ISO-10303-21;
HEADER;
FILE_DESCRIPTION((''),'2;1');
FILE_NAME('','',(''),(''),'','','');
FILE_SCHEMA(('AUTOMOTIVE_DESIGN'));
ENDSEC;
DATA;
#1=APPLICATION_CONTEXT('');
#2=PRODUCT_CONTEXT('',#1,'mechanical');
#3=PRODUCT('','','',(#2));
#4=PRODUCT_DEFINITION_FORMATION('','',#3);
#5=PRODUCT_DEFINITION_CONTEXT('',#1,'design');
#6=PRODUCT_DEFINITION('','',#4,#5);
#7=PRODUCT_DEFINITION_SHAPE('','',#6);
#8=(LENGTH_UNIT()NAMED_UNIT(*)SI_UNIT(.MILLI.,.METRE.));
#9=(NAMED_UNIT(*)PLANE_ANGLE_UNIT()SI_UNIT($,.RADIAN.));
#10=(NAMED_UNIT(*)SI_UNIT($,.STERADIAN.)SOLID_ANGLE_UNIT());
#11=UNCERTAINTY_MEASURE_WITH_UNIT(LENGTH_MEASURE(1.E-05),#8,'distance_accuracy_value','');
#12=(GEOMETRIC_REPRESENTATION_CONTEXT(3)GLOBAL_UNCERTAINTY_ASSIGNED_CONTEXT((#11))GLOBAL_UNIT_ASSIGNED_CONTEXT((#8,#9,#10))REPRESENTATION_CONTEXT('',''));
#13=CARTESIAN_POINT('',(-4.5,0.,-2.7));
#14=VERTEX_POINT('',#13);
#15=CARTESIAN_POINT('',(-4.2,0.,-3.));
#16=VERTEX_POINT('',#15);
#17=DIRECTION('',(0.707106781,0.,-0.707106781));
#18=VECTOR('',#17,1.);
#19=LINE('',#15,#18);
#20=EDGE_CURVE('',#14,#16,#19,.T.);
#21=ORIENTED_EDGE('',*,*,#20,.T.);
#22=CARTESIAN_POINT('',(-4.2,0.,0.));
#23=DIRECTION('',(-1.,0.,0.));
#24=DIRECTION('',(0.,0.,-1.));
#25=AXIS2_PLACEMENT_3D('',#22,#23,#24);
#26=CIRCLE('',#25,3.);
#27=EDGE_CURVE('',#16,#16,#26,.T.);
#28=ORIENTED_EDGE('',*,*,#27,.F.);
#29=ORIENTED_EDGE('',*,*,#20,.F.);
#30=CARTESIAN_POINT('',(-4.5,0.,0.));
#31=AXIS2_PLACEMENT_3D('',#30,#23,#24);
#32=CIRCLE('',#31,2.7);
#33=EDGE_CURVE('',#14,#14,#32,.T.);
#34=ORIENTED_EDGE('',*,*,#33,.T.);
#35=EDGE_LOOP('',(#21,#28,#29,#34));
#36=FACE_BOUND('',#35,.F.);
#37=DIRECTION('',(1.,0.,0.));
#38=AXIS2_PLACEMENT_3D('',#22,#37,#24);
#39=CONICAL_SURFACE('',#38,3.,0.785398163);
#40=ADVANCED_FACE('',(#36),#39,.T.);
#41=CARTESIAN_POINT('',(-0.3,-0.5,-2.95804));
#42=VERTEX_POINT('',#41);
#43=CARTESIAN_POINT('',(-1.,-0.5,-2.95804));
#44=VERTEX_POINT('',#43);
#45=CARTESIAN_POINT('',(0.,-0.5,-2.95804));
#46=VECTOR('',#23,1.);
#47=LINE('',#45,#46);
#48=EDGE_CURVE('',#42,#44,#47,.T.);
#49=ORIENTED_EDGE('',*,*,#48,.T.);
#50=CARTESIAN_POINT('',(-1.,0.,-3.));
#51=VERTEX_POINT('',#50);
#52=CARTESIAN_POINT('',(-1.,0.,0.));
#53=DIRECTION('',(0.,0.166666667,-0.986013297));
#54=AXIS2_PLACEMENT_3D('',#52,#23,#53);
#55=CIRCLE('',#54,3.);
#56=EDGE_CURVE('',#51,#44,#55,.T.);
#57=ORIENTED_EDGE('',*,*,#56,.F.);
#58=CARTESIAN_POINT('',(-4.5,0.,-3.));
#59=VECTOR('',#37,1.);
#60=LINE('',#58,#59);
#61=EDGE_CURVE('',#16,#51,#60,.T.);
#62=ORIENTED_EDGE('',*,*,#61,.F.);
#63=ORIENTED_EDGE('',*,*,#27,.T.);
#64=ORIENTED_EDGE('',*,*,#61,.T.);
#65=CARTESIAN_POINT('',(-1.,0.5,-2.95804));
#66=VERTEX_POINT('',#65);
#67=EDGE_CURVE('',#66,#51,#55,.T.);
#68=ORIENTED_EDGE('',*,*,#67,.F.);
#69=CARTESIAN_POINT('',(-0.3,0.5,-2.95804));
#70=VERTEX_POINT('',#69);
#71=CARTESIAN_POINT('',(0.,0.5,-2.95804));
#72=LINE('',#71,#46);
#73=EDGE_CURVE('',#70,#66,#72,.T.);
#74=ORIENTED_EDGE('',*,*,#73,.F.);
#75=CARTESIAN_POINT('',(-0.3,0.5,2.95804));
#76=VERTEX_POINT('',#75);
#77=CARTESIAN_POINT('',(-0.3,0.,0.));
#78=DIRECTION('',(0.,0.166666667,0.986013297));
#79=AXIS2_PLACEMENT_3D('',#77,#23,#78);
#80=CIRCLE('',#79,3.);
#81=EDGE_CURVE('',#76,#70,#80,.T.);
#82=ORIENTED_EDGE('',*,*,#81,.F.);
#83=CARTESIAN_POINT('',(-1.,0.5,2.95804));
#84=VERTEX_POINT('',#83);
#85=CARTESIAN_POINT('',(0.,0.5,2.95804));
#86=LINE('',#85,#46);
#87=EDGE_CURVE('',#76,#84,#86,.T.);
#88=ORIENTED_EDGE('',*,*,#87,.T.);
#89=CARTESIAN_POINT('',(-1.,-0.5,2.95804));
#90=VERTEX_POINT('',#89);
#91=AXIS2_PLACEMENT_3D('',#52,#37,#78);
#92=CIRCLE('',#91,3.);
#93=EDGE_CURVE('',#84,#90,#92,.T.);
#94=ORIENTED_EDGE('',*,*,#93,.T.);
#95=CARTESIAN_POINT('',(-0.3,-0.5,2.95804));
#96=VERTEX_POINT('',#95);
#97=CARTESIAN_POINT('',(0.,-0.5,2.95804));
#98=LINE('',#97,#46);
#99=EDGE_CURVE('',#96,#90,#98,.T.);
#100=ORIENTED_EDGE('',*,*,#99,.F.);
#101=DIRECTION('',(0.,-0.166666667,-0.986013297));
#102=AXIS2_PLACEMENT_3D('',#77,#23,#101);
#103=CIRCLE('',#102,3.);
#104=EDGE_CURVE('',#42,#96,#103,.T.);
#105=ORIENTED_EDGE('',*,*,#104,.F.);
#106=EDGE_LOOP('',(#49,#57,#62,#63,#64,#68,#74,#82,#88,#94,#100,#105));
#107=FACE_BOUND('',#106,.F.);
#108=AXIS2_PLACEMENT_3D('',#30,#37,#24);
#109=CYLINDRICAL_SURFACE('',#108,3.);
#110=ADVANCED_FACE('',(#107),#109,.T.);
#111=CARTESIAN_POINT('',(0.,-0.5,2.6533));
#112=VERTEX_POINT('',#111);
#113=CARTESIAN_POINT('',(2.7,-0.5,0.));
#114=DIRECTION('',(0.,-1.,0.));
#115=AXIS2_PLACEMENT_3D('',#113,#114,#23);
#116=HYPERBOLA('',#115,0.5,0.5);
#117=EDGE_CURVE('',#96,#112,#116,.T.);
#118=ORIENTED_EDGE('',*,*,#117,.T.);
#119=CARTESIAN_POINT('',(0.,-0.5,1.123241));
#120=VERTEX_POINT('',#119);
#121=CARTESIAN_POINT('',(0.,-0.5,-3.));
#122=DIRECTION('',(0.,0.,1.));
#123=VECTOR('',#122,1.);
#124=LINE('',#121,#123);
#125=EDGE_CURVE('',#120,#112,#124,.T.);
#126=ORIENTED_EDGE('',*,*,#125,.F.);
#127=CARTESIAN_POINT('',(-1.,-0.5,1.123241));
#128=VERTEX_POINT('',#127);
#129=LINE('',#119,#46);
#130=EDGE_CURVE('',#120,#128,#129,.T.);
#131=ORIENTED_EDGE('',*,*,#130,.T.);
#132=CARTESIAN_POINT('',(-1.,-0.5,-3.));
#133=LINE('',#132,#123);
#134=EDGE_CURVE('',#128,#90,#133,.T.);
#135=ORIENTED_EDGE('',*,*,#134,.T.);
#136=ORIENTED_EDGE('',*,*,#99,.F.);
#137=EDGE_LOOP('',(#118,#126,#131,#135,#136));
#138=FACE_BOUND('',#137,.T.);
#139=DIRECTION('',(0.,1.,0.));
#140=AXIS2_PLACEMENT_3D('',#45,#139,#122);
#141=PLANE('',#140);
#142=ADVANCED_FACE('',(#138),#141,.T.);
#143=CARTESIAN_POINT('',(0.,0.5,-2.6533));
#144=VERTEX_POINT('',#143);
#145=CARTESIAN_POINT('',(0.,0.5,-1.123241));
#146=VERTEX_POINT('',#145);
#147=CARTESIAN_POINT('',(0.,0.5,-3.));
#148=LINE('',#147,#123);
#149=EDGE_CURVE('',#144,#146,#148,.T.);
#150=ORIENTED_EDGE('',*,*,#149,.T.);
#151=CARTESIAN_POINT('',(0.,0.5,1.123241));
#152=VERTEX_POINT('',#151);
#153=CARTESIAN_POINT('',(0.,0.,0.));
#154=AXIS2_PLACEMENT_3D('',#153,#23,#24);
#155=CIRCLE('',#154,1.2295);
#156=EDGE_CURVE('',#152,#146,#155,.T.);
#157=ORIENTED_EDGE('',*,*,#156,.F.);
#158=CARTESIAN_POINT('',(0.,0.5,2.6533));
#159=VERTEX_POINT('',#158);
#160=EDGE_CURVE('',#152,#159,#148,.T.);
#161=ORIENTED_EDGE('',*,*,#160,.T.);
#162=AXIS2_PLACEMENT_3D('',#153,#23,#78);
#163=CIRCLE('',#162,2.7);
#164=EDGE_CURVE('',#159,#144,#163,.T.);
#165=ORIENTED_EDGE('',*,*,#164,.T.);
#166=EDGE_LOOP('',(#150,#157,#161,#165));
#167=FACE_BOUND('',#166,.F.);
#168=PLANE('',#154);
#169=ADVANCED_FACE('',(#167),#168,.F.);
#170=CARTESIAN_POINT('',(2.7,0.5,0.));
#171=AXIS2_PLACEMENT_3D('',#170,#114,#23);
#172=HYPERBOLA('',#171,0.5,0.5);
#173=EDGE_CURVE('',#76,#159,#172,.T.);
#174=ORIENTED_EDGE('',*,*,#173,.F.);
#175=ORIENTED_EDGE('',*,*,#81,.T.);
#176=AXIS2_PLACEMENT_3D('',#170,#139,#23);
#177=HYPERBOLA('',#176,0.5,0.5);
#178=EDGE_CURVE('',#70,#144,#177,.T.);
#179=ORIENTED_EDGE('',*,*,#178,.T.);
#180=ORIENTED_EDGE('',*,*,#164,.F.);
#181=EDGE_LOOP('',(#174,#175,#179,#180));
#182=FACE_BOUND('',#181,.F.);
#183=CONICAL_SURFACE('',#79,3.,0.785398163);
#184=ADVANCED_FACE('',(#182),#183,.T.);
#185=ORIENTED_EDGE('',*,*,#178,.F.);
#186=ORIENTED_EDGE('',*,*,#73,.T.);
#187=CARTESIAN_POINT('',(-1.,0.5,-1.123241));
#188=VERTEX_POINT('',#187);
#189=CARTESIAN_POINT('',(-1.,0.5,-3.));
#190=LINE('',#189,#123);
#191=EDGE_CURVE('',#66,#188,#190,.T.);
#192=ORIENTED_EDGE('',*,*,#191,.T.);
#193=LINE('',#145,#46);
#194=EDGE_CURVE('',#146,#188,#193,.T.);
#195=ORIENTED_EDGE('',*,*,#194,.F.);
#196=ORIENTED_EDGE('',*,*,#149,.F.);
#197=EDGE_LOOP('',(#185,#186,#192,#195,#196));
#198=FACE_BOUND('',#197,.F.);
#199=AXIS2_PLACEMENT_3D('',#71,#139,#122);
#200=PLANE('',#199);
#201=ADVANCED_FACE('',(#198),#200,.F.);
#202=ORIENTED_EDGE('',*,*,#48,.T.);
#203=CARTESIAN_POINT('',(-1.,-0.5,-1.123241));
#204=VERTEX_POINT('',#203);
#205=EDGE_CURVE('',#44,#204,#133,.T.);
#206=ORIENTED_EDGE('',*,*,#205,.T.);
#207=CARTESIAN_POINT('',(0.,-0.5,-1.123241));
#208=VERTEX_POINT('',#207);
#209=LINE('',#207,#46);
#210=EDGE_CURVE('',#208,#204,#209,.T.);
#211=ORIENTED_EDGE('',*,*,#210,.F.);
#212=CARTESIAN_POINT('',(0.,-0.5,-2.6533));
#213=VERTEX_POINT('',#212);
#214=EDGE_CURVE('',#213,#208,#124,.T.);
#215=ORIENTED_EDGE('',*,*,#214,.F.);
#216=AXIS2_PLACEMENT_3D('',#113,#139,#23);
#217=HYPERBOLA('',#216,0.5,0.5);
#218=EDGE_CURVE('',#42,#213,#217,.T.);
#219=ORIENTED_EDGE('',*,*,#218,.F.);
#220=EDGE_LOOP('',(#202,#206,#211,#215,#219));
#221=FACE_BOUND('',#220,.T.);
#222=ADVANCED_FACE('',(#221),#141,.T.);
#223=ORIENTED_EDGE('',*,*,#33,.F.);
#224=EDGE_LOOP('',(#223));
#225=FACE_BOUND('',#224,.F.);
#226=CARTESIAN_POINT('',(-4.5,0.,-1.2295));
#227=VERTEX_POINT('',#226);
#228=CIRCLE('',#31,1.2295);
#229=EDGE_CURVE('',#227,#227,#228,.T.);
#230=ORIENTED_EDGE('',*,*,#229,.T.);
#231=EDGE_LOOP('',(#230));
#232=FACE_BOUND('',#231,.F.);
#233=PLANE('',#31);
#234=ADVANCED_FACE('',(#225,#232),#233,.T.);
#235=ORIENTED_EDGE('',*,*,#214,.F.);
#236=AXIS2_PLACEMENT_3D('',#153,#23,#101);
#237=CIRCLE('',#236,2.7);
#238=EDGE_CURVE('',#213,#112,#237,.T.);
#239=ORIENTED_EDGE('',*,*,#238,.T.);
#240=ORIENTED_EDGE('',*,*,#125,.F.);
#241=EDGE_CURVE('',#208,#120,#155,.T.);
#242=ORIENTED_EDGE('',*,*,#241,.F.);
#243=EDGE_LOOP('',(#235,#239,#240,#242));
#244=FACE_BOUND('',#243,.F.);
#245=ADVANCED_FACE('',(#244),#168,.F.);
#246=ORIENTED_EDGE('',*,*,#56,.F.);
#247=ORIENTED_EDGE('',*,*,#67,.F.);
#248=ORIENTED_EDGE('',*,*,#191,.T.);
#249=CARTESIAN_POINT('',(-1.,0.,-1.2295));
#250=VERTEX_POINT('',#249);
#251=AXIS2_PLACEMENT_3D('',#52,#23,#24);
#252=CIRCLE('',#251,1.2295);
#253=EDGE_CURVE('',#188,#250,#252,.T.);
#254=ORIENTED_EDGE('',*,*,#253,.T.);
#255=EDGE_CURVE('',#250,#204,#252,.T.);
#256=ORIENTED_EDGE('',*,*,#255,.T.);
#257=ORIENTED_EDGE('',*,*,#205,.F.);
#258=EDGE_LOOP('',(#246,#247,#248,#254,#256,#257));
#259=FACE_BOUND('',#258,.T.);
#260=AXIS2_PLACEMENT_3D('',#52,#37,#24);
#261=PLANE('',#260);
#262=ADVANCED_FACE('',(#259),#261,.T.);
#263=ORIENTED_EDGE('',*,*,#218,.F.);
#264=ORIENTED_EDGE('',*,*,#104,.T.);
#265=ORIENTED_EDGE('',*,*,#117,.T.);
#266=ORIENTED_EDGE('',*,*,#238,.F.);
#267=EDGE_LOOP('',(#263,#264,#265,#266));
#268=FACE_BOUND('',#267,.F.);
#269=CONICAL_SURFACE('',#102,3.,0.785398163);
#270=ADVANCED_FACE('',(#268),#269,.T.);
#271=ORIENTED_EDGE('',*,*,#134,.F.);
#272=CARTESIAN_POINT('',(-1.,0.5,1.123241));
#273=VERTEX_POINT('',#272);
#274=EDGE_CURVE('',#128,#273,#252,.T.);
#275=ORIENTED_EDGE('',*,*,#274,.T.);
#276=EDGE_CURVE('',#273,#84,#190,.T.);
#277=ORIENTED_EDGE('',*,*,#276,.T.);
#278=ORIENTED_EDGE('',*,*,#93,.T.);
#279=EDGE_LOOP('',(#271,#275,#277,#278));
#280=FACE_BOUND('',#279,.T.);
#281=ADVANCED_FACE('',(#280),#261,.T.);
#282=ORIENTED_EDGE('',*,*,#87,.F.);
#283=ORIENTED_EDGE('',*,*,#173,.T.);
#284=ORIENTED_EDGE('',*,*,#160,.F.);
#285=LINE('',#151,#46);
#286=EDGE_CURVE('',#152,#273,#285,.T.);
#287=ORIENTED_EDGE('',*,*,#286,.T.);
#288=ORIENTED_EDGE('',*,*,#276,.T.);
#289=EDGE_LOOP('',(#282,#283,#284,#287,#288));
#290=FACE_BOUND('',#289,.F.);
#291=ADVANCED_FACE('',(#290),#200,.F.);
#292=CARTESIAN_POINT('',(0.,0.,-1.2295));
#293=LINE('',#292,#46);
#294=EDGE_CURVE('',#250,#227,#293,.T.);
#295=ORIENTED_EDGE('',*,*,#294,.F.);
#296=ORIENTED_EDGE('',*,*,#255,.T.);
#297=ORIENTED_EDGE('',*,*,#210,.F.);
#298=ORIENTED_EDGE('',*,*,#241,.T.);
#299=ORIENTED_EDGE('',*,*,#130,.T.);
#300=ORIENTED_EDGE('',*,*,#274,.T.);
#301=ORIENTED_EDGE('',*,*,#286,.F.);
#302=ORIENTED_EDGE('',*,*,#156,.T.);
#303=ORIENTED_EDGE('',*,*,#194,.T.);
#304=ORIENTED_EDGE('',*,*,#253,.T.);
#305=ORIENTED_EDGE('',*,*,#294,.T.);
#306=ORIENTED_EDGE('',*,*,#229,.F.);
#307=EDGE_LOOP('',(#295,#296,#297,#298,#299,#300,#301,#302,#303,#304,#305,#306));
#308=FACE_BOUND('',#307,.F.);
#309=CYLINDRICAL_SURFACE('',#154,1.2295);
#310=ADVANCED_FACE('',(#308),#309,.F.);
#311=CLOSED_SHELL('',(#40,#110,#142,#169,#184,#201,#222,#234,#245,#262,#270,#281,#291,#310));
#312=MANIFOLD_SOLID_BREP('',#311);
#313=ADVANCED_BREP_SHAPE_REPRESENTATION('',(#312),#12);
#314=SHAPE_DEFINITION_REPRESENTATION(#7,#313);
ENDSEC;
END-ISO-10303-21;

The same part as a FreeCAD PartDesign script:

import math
import FreeCAD as App
import Part
import Sketcher


def edges_at(feature, points):
    """Names of the edges that pass closest to the given points."""
    edges = feature.Shape.Edges
    near = lambda p: min(range(len(edges)), key=lambda i: edges[i].distToShape(Part.Vertex(*p))[0])
    return sorted({f"Edge{near(p) + 1}" for p in points})

doc = App.newDocument("Part")
body = doc.addObject("PartDesign::Body", "Body")

sketch1 = body.newObject("Sketcher::SketchObject", "Sketch")
sketch1.AttachmentSupport = (doc.getObject("XZ_Plane"), [""])
sketch1.MapMode = "FlatFace"
sketch1.addGeometry([
    Part.LineSegment(App.Vector(-4.5, 0, 0), App.Vector(0, 0, 0)),
    Part.LineSegment(App.Vector(0, 0, 0), App.Vector(0, -3, 0)),
    Part.LineSegment(App.Vector(0, -3, 0), App.Vector(-4.5, -3, 0)),
    Part.LineSegment(App.Vector(-4.5, -3, 0), App.Vector(-4.5, 0, 0)),
], False)
sketch1.addConstraint([
    Sketcher.Constraint("Coincident", 0, 2, 1, 1),
    Sketcher.Constraint("Coincident", 1, 2, 2, 1),
    Sketcher.Constraint("Coincident", 2, 2, 3, 1),
    Sketcher.Constraint("Coincident", 3, 2, 0, 1),
    Sketcher.Constraint("Horizontal", 0),
    Sketcher.Constraint("Vertical", 1),
    Sketcher.Constraint("Horizontal", 2),
    Sketcher.Constraint("Vertical", 3),
    Sketcher.Constraint("Coincident", 0, 2, -1, 1),
    Sketcher.Constraint("DistanceY", 1, 2, 1, 1, 3.0),
    Sketcher.Constraint("DistanceX", 0, 1, 0, 2, 4.5),
])
revolution = body.newObject("PartDesign::Revolution", "Revolution")
revolution.Profile = sketch1
revolution.ReferenceAxis = (sketch1, ["H_Axis"])
revolution.Angle = 360

sketch2 = body.newObject("Sketcher::SketchObject", "Sketch001")
sketch2.AttachmentSupport = (doc.getObject("YZ_Plane"), [""])
sketch2.MapMode = "FlatFace"
sketch2.addGeometry(Part.Circle(App.Vector(0, 0, 0), App.Vector(0, 0, 1), 1.2295), False)
sketch2.addConstraint([
    Sketcher.Constraint("Coincident", 0, 3, -1, 1),
    Sketcher.Constraint("Diameter", 0, 2.459),
])
doc.recompute()
hole = body.newObject("PartDesign::Hole", "Hole")
hole.Profile = sketch2
hole.ThreadType = "None"
hole.Diameter = 2.459
hole.DepthType = "ThroughAll"

sketch3 = body.newObject("Sketcher::SketchObject", "Sketch002")
sketch3.AttachmentSupport = (doc.getObject("YZ_Plane"), [""])
sketch3.MapMode = "FlatFace"
sketch3.addGeometry([
    Part.ArcOfCircle(Part.Circle(App.Vector(0, 0, 0), App.Vector(0, 0, 1), 3), math.radians(80.405932), math.radians(99.594068)),
    Part.LineSegment(App.Vector(-0.5, 2.95804, 0), App.Vector(-0.5, -2.95804, 0)),
    Part.ArcOfCircle(Part.Circle(App.Vector(0, 0, 0), App.Vector(0, 0, 1), 3), math.radians(-99.594068), math.radians(-80.405932)),
    Part.LineSegment(App.Vector(0.5, -2.95804, 0), App.Vector(0.5, 2.95804, 0)),
], False)
sketch3.addConstraint([
    Sketcher.Constraint("Coincident", 0, 2, 1, 1),
    Sketcher.Constraint("Coincident", 1, 2, 2, 1),
    Sketcher.Constraint("Coincident", 2, 2, 3, 1),
    Sketcher.Constraint("Coincident", 3, 2, 0, 1),
    Sketcher.Constraint("Vertical", 1),
    Sketcher.Constraint("Vertical", 3),
    Sketcher.Constraint("Coincident", 0, 3, -1, 1),
    Sketcher.Constraint("Coincident", 2, 3, -1, 1),
    Sketcher.Constraint("Equal", 0, 2),
    Sketcher.Constraint("Horizontal", 1, 2, 2, 2),
    Sketcher.Constraint("Radius", 0, 3.0),
    Sketcher.Constraint("DistanceX", 0, 2, -1, 1, 0.5),
])
pocket1 = body.newObject("PartDesign::Pocket", "Pocket")
pocket1.Profile = sketch3
pocket1.Length = 1
doc.recompute()

chamfer = body.newObject("PartDesign::Chamfer", "Chamfer")
chamfer.Base = (pocket1, edges_at(pocket1, [(-4.5, 0, 3), (0, 3, 0), (0, -3, 0)]))
chamfer.Size = 0.3

doc.recompute()
